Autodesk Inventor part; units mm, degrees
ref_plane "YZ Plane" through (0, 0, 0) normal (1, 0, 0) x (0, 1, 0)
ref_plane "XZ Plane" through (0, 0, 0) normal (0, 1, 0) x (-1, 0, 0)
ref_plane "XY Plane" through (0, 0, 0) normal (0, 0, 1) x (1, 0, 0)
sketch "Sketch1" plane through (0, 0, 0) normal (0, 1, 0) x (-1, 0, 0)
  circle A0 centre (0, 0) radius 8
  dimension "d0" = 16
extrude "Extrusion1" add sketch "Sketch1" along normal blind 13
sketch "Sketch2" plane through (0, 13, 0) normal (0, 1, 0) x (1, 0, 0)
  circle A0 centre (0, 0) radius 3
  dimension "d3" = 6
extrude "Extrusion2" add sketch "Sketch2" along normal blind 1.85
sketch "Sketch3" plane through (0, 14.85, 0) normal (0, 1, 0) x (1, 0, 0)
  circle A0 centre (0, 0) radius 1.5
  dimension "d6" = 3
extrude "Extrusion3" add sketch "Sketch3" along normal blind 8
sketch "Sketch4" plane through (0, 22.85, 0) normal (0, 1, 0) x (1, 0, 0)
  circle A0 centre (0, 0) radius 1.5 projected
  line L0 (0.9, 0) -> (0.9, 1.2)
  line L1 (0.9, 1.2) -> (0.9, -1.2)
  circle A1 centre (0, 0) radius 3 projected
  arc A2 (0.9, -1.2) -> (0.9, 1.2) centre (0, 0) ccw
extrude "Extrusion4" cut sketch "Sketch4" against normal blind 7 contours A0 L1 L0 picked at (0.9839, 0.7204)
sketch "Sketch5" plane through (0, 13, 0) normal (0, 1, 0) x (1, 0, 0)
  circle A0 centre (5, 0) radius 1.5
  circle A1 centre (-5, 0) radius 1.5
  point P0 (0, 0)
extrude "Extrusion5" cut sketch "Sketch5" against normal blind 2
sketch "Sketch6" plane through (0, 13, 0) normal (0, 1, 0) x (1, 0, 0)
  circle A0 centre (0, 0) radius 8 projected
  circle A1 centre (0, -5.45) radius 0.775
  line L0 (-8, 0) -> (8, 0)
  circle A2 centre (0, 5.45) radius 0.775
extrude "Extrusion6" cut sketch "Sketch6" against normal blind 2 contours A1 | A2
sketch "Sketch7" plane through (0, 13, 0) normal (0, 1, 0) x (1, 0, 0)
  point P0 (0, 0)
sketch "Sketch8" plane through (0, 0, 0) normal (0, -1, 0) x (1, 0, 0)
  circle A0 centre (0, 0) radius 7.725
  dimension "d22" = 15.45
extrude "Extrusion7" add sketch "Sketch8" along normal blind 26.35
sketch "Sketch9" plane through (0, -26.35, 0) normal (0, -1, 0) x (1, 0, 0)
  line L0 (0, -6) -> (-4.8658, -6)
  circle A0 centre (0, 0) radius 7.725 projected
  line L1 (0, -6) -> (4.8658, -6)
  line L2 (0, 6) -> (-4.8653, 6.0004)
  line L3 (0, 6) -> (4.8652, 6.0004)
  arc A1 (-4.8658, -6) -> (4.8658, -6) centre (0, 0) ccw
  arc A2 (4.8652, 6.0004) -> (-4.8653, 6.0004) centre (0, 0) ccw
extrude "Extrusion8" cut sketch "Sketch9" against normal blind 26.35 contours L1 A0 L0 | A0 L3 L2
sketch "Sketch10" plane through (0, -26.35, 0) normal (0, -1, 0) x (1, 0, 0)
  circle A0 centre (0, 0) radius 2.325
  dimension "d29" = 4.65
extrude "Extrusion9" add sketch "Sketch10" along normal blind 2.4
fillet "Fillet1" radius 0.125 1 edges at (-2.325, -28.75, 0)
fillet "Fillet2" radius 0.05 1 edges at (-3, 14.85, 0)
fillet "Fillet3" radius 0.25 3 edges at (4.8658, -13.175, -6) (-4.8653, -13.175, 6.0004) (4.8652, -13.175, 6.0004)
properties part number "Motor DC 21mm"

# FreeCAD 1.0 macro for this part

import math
import FreeCAD as App
import Part
import Sketcher

V = App.Vector
Q = App.Units.Quantity


def edges_at(feature, points):
    """Names of the edges that pass closest to the given points."""
    edges = feature.Shape.Edges
    near = lambda p: min(range(len(edges)), key=lambda i: edges[i].distToShape(Part.Vertex(*p))[0])
    return sorted({f"Edge{near(p) + 1}" for p in points})

doc = App.newDocument("Part")
body = doc.addObject("PartDesign::Body", "Body")

# Sketch on XZ plane
sketch1 = doc.addObject("Sketcher::SketchObject", "Sketch")
body.addObject(sketch1)
sketch1.AttachmentSupport = (doc.XZ_Plane, [""])
sketch1.MapMode = "FlatFace"
sketch1.addGeometry(Part.Circle(V(0, 0, 0), V(0, 0, 1), 8), False)
sketch1.addConstraint([
    Sketcher.Constraint("Coincident", 0, 3, -1, 1),
    Sketcher.Constraint("Diameter", 0, Q("16 mm")),
])
pad1 = doc.addObject("PartDesign::Pad", "Pad")
body.addObject(pad1)
pad1.Profile = sketch1
pad1.Length = 13
pad1.Reversed = True

# Sketch on XZ plane
sketch2 = doc.addObject("Sketcher::SketchObject", "Sketch001")
body.addObject(sketch2)
sketch2.AttachmentSupport = (doc.XZ_Plane, [""])
sketch2.MapMode = "FlatFace"
sketch2.AttachmentOffset = App.Placement(V(0, 0, -13), App.Rotation())
sketch2.addGeometry(Part.Circle(V(0, 0, 0), V(0, 0, 1), 3), False)
sketch2.addConstraint([
    Sketcher.Constraint("Coincident", 0, 3, -1, 1),
    Sketcher.Constraint("Diameter", 0, Q("6 mm")),
])
pad2 = doc.addObject("PartDesign::Pad", "Pad001")
body.addObject(pad2)
pad2.Profile = sketch2
pad2.Length = 1.85
pad2.Reversed = True

# Sketch on XZ plane
sketch3 = doc.addObject("Sketcher::SketchObject", "Sketch002")
body.addObject(sketch3)
sketch3.AttachmentSupport = (doc.XZ_Plane, [""])
sketch3.MapMode = "FlatFace"
sketch3.AttachmentOffset = App.Placement(V(0, 0, -14.85), App.Rotation())
sketch3.addGeometry(Part.Circle(V(0, 0, 0), V(0, 0, 1), 1.5), False)
sketch3.addConstraint([
    Sketcher.Constraint("Coincident", 0, 3, -1, 1),
    Sketcher.Constraint("Diameter", 0, Q("3 mm")),
])
pad3 = doc.addObject("PartDesign::Pad", "Pad002")
body.addObject(pad3)
pad3.Profile = sketch3
pad3.Length = 8
pad3.Reversed = True

# Sketch on XZ plane
sketch4 = doc.addObject("Sketcher::SketchObject", "Sketch003")
body.addObject(sketch4)
sketch4.AttachmentSupport = (doc.XZ_Plane, [""])
sketch4.MapMode = "FlatFace"
sketch4.AttachmentOffset = App.Placement(V(0, 0, -22.85), App.Rotation())
sketch4.addGeometry([
    Part.ArcOfCircle(Part.Circle(V(0, 0, 0), V(0, 0, 1), 1.5), math.radians(-53.130102), math.radians(53.130102)),
    Part.LineSegment(V(0.9, -1.2, 0), V(0.9, 1.2, 0)),
], False)
sketch4.addConstraint([
    Sketcher.Constraint("Coincident", 0, 1, 1, 1),
    Sketcher.Constraint("Coincident", 1, 2, 0, 2),
    Sketcher.Constraint("Vertical", 1),
    Sketcher.Constraint("Coincident", 0, 3, -1, 1),
    Sketcher.Constraint("Radius", 0, Q("1.5 mm")),
    Sketcher.Constraint("DistanceY", 1, 1, 1, 2, Q("2.4 mm")),
])
pocket1 = doc.addObject("PartDesign::Pocket", "Pocket")
body.addObject(pocket1)
pocket1.Profile = sketch4
pocket1.Length = 7
pocket1.Reversed = True

# Sketch on XZ plane
sketch5 = doc.addObject("Sketcher::SketchObject", "Sketch004")
body.addObject(sketch5)
sketch5.AttachmentSupport = (doc.XZ_Plane, [""])
sketch5.MapMode = "FlatFace"
sketch5.AttachmentOffset = App.Placement(V(0, 0, -13), App.Rotation())
sketch5.addGeometry([
    Part.Circle(V(5, 0, 0), V(0, 0, 1), 1.5),
    Part.Circle(V(-5, 0, 0), V(0, 0, 1), 1.5),
], False)
sketch5.addConstraint([
    Sketcher.Constraint("Equal", 0, 1),
    Sketcher.Constraint("Symmetric", 0, 3, 1, 3, -1, 1),
    Sketcher.Constraint("PointOnObject", 0, 3, -1),
    Sketcher.Constraint("Diameter", 0, Q("3 mm")),
    Sketcher.Constraint("DistanceX", -1, 1, 0, 3, Q("5 mm")),
])
pocket2 = doc.addObject("PartDesign::Pocket", "Pocket001")
body.addObject(pocket2)
pocket2.Profile = sketch5
pocket2.Length = 2
pocket2.Reversed = True

# Sketch on XZ plane
sketch6 = doc.addObject("Sketcher::SketchObject", "Sketch005")
body.addObject(sketch6)
sketch6.AttachmentSupport = (doc.XZ_Plane, [""])
sketch6.MapMode = "FlatFace"
sketch6.AttachmentOffset = App.Placement(V(0, 0, -13), App.Rotation())
sketch6.addGeometry([
    Part.Circle(V(0, 5.45, 0), V(0, 0, 1), 0.775),
    Part.Circle(V(0, -5.45, 0), V(0, 0, 1), 0.775),
], False)
sketch6.addConstraint([
    Sketcher.Constraint("Equal", 0, 1),
    Sketcher.Constraint("Symmetric", 0, 3, 1, 3, -1, 1),
    Sketcher.Constraint("PointOnObject", 0, 3, -2),
    Sketcher.Constraint("Diameter", 0, Q("1.55 mm")),
    Sketcher.Constraint("DistanceY", 1, 3, 0, 3, Q("10.9 mm")),
])
pocket3 = doc.addObject("PartDesign::Pocket", "Pocket002")
body.addObject(pocket3)
pocket3.Profile = sketch6
pocket3.Length = 2
pocket3.Reversed = True

# Sketch on XZ plane
sketch7 = doc.addObject("Sketcher::SketchObject", "Sketch006")
body.addObject(sketch7)
sketch7.AttachmentSupport = (doc.XZ_Plane, [""])
sketch7.MapMode = "FlatFace"
sketch7.addGeometry(Part.Circle(V(0, 0, 0), V(0, 0, 1), 7.725), False)
sketch7.addConstraint([
    Sketcher.Constraint("Coincident", 0, 3, -1, 1),
    Sketcher.Constraint("Diameter", 0, Q("15.45 mm")),
])
pad4 = doc.addObject("PartDesign::Pad", "Pad003")
body.addObject(pad4)
pad4.Profile = sketch7
pad4.Length = 26.35

# Sketch on XZ plane
sketch8 = doc.addObject("Sketcher::SketchObject", "Sketch007")
body.addObject(sketch8)
sketch8.AttachmentSupport = (doc.XZ_Plane, [""])
sketch8.MapMode = "FlatFace"
sketch8.AttachmentOffset = App.Placement(V(0, 0, 26.35), App.Rotation())
sketch8.addGeometry([
    Part.LineSegment(V(4.8658, -6, 0), V(-4.8658, -6, 0)),  # 0
    Part.ArcOfCircle(Part.Circle(V(0, 0, 0), V(0, 0, 1), 7.725), math.radians(-129.0409), math.radians(-50.9591)),  # 1
    Part.ArcOfCircle(Part.Circle(V(0, 0, 0), V(0, 0, 1), 7.725), math.radians(50.964425), math.radians(129.036151)),  # 2
    Part.LineSegment(V(-4.8653, 6.0004, 0), V(0, 6, 0)),  # 3
    Part.LineSegment(V(0, 6, 0), V(4.8652, 6.0004, 0)),  # 4
], False)
sketch8.addConstraint([
    Sketcher.Constraint("Coincident", 0, 1, 1, 2),
    Sketcher.Constraint("Coincident", 1, 1, 0, 2),
    Sketcher.Constraint("Coincident", 2, 2, 3, 1),
    Sketcher.Constraint("Coincident", 3, 2, 4, 1),
    Sketcher.Constraint("Coincident", 4, 2, 2, 1),
    Sketcher.Constraint("Horizontal", 0),
    Sketcher.Constraint("Coincident", 1, 3, -1, 1),
    Sketcher.Constraint("Coincident", 2, 3, -1, 1),
    Sketcher.Constraint("Equal", 1, 2),
    Sketcher.Constraint("PointOnObject", 3, 2, -2),
    Sketcher.Constraint("Parallel", 3, 4),
    Sketcher.Constraint("Horizontal", 2, 2, 4, 2),
    Sketcher.Constraint("DistanceY", 0, 1, -1, 1, Q("6 mm")),
    Sketcher.Constraint("DistanceY", -1, 1, 3, 2, Q("6 mm")),
    Sketcher.Constraint("Radius", 1, Q("7.725 mm")),
])
pocket4 = doc.addObject("PartDesign::Pocket", "Pocket003")
body.addObject(pocket4)
pocket4.Profile = sketch8
pocket4.Length = 26.35

# Sketch on XZ plane
sketch9 = doc.addObject("Sketcher::SketchObject", "Sketch008")
body.addObject(sketch9)
sketch9.AttachmentSupport = (doc.XZ_Plane, [""])
sketch9.MapMode = "FlatFace"
sketch9.AttachmentOffset = App.Placement(V(0, 0, 26.35), App.Rotation())
sketch9.addGeometry(Part.Circle(V(0, 0, 0), V(0, 0, 1), 2.325), False)
sketch9.addConstraint([
    Sketcher.Constraint("Coincident", 0, 3, -1, 1),
    Sketcher.Constraint("Diameter", 0, Q("4.65 mm")),
])
pad5 = doc.addObject("PartDesign::Pad", "Pad004")
body.addObject(pad5)
pad5.Profile = sketch9
pad5.Length = 2.4
doc.recompute()

fillet = doc.addObject("PartDesign::Fillet", "Fillet")
body.addObject(fillet)
fillet.Base = (pad5, edges_at(pad5, [(-2.325, -28.75, 0)]))
fillet.Radius = 0.125
doc.recompute()

fillet2 = doc.addObject("PartDesign::Fillet", "Fillet001")
body.addObject(fillet2)
fillet2.Base = (fillet, edges_at(fillet, [(-3, 14.85, 0)]))
fillet2.Radius = 0.05
doc.recompute()

fillet3 = doc.addObject("PartDesign::Fillet", "Fillet002")
body.addObject(fillet3)
fillet3.Base = (fillet2, edges_at(fillet2, [(4.866, -13.175, -6), (-4.865, -13.175, 6), (4.865, -13.175, 6)]))
fillet3.Radius = 0.25

doc.recompute()
